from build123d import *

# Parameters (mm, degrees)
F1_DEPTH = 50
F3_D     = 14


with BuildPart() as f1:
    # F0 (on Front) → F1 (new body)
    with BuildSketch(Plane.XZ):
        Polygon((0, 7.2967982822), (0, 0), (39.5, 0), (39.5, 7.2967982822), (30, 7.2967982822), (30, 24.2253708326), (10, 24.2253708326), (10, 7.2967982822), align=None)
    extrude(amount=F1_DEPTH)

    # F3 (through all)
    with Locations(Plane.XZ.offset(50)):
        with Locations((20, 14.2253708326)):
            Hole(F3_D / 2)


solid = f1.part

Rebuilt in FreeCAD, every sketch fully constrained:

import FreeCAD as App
import Part
import Sketcher

doc = App.newDocument("Part")
body = doc.addObject("PartDesign::Body", "Body")

# Sketch on XZ plane
sketch1 = doc.addObject("Sketcher::SketchObject", "Sketch")
body.addObject(sketch1)
sketch1.AttachmentSupport = (doc.XZ_Plane, [""])
sketch1.MapMode = "FlatFace"
sketch1.addGeometry([
    Part.LineSegment(App.Vector(0, 7.296798, 0), App.Vector(0, 0, 0)),  # 0
    Part.LineSegment(App.Vector(0, 0, 0), App.Vector(39.5, 0, 0)),  # 1
    Part.LineSegment(App.Vector(39.5, 0, 0), App.Vector(39.5, 7.296798, 0)),  # 2
    Part.LineSegment(App.Vector(39.5, 7.296798, 0), App.Vector(30, 7.296798, 0)),  # 3
    Part.LineSegment(App.Vector(30, 7.296798, 0), App.Vector(30, 24.225371, 0)),  # 4
    Part.LineSegment(App.Vector(30, 24.225371, 0), App.Vector(10, 24.225371, 0)),  # 5
    Part.LineSegment(App.Vector(10, 24.225371, 0), App.Vector(10, 7.296798, 0)),  # 6
    Part.LineSegment(App.Vector(10, 7.296798, 0), App.Vector(0, 7.296798, 0)),  # 7
], False)
sketch1.addConstraint([
    Sketcher.Constraint("Coincident", 0, 2, 1, 1),
    Sketcher.Constraint("Coincident", 1, 2, 2, 1),
    Sketcher.Constraint("Coincident", 2, 2, 3, 1),
    Sketcher.Constraint("Coincident", 3, 2, 4, 1),
    Sketcher.Constraint("Coincident", 4, 2, 5, 1),
    Sketcher.Constraint("Coincident", 5, 2, 6, 1),
    Sketcher.Constraint("Coincident", 6, 2, 7, 1),
    Sketcher.Constraint("Coincident", 7, 2, 0, 1),
    Sketcher.Constraint("Vertical", 0),
    Sketcher.Constraint("Horizontal", 1),
    Sketcher.Constraint("Vertical", 2),
    Sketcher.Constraint("Horizontal", 3),
    Sketcher.Constraint("Vertical", 4),
    Sketcher.Constraint("Horizontal", 5),
    Sketcher.Constraint("Vertical", 6),
    Sketcher.Constraint("Horizontal", 7),
    Sketcher.Constraint("Coincident", 0, 2, -1, 1),
    Sketcher.Constraint("Horizontal", 3, 2, 6, 2),
    Sketcher.Constraint("DistanceX", 5, 2, 5, 1, 20.0),
    Sketcher.Constraint("DistanceX", 7, 2, 7, 1, 10.0),
    Sketcher.Constraint("DistanceX", 1, 1, 1, 2, 39.5),
    Sketcher.Constraint("DistanceY", 0, 2, 0, 1, 7.296798),
    Sketcher.Constraint("DistanceY", 4, 1, 4, 2, 16.928573),
])
pad1 = doc.addObject("PartDesign::Pad", "Pad")
body.addObject(pad1)
pad1.Profile = sketch1
pad1.Length = 50

# Sketch on XZ plane
sketch2 = doc.addObject("Sketcher::SketchObject", "Sketch001")
body.addObject(sketch2)
sketch2.AttachmentSupport = (doc.XZ_Plane, [""])
sketch2.MapMode = "FlatFace"
sketch2.AttachmentOffset = App.Placement(App.Vector(0, 0, 50), App.Rotation())
sketch2.addGeometry(Part.Circle(App.Vector(20, 14.225371, 0), App.Vector(0, 0, 1), 7), False)
sketch2.addConstraint([
    Sketcher.Constraint("Diameter", 0, 14.0),
    Sketcher.Constraint("DistanceX", -1, 1, 0, 3, 20.0),
    Sketcher.Constraint("DistanceY", -1, 1, 0, 3, 14.225371),
])
doc.recompute()
hole = doc.addObject("PartDesign::Hole", "Hole")
body.addObject(hole)
hole.Profile = sketch2
hole.ThreadType = "None"
hole.Diameter = 14
hole.DepthType = "ThroughAll"

doc.recompute()
